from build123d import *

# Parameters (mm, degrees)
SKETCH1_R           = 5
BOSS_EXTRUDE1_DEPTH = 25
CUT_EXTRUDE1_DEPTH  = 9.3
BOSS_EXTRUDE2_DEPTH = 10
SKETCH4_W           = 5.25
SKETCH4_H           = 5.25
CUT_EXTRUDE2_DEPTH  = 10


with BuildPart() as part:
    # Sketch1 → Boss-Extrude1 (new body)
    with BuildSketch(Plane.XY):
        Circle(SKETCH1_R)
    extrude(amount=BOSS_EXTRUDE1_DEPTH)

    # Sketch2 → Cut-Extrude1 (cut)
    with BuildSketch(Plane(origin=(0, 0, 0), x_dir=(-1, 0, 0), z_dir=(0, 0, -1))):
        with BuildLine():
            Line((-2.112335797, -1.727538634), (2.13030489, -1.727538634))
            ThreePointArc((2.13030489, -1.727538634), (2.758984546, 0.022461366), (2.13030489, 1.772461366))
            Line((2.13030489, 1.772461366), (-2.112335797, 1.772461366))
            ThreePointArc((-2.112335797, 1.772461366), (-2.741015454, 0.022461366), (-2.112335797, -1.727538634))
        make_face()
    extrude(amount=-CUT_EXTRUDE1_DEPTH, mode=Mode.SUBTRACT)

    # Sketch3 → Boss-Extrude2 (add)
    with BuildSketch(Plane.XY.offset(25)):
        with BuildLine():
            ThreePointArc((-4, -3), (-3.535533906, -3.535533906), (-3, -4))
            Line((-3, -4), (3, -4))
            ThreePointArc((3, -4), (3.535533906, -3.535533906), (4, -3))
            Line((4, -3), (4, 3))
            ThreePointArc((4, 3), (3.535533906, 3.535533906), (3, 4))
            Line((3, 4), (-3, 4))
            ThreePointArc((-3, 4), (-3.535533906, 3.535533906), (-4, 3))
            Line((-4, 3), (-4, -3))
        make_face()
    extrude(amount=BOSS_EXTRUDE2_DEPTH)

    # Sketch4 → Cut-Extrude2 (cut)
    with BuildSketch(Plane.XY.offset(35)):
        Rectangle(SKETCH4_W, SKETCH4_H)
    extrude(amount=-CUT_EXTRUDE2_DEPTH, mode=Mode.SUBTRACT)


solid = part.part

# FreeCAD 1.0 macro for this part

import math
import FreeCAD as App
import Part
import Sketcher

V = App.Vector

doc = App.newDocument("Part")
params = doc.addObject("Spreadsheet::Sheet", "Params")
for row, (alias, value) in enumerate([
    ("sketch1_diameter", "10 mm"),
    ("pad1_length", "25 mm"),
    ("sketch2_radius", "2.75 mm"),
    ("pocket1_length", "9.3 mm"),
    ("sketch3_radius", "5 mm"),
    ("sketch3_width", "6 mm"),
    ("pad2_length", "10 mm"),
    ("sketch4_width", "5.25 mm"),
    ("pocket2_length", "10 mm"),
], start=1):
    params.set(f"A{row}", alias)
    params.set(f"B{row}", "=" + value)
    params.setAlias(f"B{row}", alias)

body = doc.addObject("PartDesign::Body", "Body")

sketch1 = doc.addObject("Sketcher::SketchObject", "Sketch")
body.addObject(sketch1)
sketch1.AttachmentSupport = (doc.XY_Plane, [""])
sketch1.MapMode = "FlatFace"
sketch1.addGeometry(Part.Circle(V(0, 0, 0), V(0, 0, 1), 5), False)
sketch1.addConstraint(Sketcher.Constraint("Coincident", 0, 3, -1, 1))
sketch1.addConstraint(Sketcher.Constraint("Diameter", 0, 10.0))
sketch1.setExpression("Constraints[1]", "Params.sketch1_diameter")
pad1 = doc.addObject("PartDesign::Pad", "Pad")
body.addObject(pad1)
pad1.Profile = sketch1
pad1.setExpression("Length", "Params.pad1_length")

sketch2 = doc.addObject("Sketcher::SketchObject", "Sketch001")
body.addObject(sketch2)
sketch2.AttachmentSupport = (doc.XY_Plane, [""])
sketch2.MapMode = "FlatFace"
sketch2.addGeometry(Part.LineSegment(V(2.112336, -1.727539, 0), V(-2.130305, -1.727539, 0)), False)
sketch2.addGeometry(Part.ArcOfCircle(Part.Circle(V(-0.008985, 0.022461, 0), V(0, 0, 1), 2.75), math.radians(140.478804), math.radians(219.521196)), False)
sketch2.addGeometry(Part.LineSegment(V(-2.130305, 1.772461, 0), V(2.112336, 1.772461, 0)), False)
sketch2.addGeometry(Part.ArcOfCircle(Part.Circle(V(-0.008985, 0.022461, 0), V(0, 0, 1), 2.75), math.radians(-39.521196), math.radians(39.521196)), False)
sketch2.addConstraint(Sketcher.Constraint("Coincident", 0, 2, 1, 2))
sketch2.addConstraint(Sketcher.Constraint("Coincident", 1, 1, 2, 1))
sketch2.addConstraint(Sketcher.Constraint("Coincident", 2, 2, 3, 2))
sketch2.addConstraint(Sketcher.Constraint("Coincident", 3, 1, 0, 1))
sketch2.addConstraint(Sketcher.Constraint("Horizontal", 0))
sketch2.addConstraint(Sketcher.Constraint("Horizontal", 2))
sketch2.addConstraint(Sketcher.Constraint("Coincident", 3, 3, 1, 3))
sketch2.addConstraint(Sketcher.Constraint("Equal", 1, 3))
sketch2.addConstraint(Sketcher.Constraint("Vertical", 0, 2, 1, 1))
sketch2.addConstraint(Sketcher.Constraint("Radius", 1, 2.75))
sketch2.addConstraint(Sketcher.Constraint("DistanceY", 0, 2, 1, 1, 3.5))
sketch2.addConstraint(Sketcher.Constraint("DistanceY", -1, 1, 1, 3, 0.022461))
sketch2.addConstraint(Sketcher.Constraint("DistanceX", 1, 3, -1, 1, 0.008985))
sketch2.setExpression("Constraints[9]", "Params.sketch2_radius")
pocket1 = doc.addObject("PartDesign::Pocket", "Pocket")
body.addObject(pocket1)
pocket1.Profile = sketch2
pocket1.setExpression("Length", "Params.pocket1_length")
pocket1.Reversed = True

sketch3 = doc.addObject("Sketcher::SketchObject", "Sketch002")
body.addObject(sketch3)
sketch3.AttachmentSupport = (doc.XY_Plane, [""])
sketch3.MapMode = "FlatFace"
sketch3.AttachmentOffset = App.Placement(V(0, 0, 25), App.Rotation())
sketch3.addGeometry(Part.ArcOfCircle(Part.Circle(V(0, 0, 0), V(0, 0, 1), 5), math.radians(-143.130102), math.radians(-126.869898)), False)
sketch3.addGeometry(Part.LineSegment(V(-3, -4, 0), V(3, -4, 0)), False)
sketch3.addGeometry(Part.ArcOfCircle(Part.Circle(V(0, 0, 0), V(0, 0, 1), 5), math.radians(-53.130102), math.radians(-36.869898)), False)
sketch3.addGeometry(Part.LineSegment(V(4, -3, 0), V(4, 3, 0)), False)
sketch3.addGeometry(Part.ArcOfCircle(Part.Circle(V(0, 0, 0), V(0, 0, 1), 5), math.radians(36.869898), math.radians(53.130102)), False)
sketch3.addGeometry(Part.LineSegment(V(3, 4, 0), V(-3, 4, 0)), False)
sketch3.addGeometry(Part.ArcOfCircle(Part.Circle(V(0, 0, 0), V(0, 0, 1), 5), math.radians(126.869898), math.radians(143.130102)), False)
sketch3.addGeometry(Part.LineSegment(V(-4, 3, 0), V(-4, -3, 0)), False)
sketch3.addConstraint(Sketcher.Constraint("Coincident", 0, 2, 1, 1))
sketch3.addConstraint(Sketcher.Constraint("Coincident", 1, 2, 2, 1))
sketch3.addConstraint(Sketcher.Constraint("Coincident", 2, 2, 3, 1))
sketch3.addConstraint(Sketcher.Constraint("Coincident", 3, 2, 4, 1))
sketch3.addConstraint(Sketcher.Constraint("Coincident", 4, 2, 5, 1))
sketch3.addConstraint(Sketcher.Constraint("Coincident", 5, 2, 6, 1))
sketch3.addConstraint(Sketcher.Constraint("Coincident", 6, 2, 7, 1))
sketch3.addConstraint(Sketcher.Constraint("Coincident", 7, 2, 0, 1))
sketch3.addConstraint(Sketcher.Constraint("Horizontal", 1))
sketch3.addConstraint(Sketcher.Constraint("Vertical", 3))
sketch3.addConstraint(Sketcher.Constraint("Horizontal", 5))
sketch3.addConstraint(Sketcher.Constraint("Vertical", 7))
sketch3.addConstraint(Sketcher.Constraint("Coincident", 0, 3, -1, 1))
sketch3.addConstraint(Sketcher.Constraint("Coincident", 2, 3, -1, 1))
sketch3.addConstraint(Sketcher.Constraint("Coincident", 4, 3, -1, 1))
sketch3.addConstraint(Sketcher.Constraint("Coincident", 6, 3, -1, 1))
sketch3.addConstraint(Sketcher.Constraint("Equal", 0, 2))
sketch3.addConstraint(Sketcher.Constraint("Equal", 2, 4))
sketch3.addConstraint(Sketcher.Constraint("Equal", 4, 6))
sketch3.addConstraint(Sketcher.Constraint("Horizontal", 3, 2, 6, 2))
sketch3.addConstraint(Sketcher.Constraint("Vertical", 1, 2, 4, 2))
sketch3.addConstraint(Sketcher.Constraint("Equal", 5, 3))
sketch3.addConstraint(Sketcher.Constraint("Radius", 0, 5.0))
sketch3.addConstraint(Sketcher.Constraint("DistanceX", 1, 1, 1, 2, 6.0))
sketch3.setExpression("Constraints[22]", "Params.sketch3_radius")
sketch3.setExpression("Constraints[23]", "Params.sketch3_width")
pad2 = doc.addObject("PartDesign::Pad", "Pad001")
body.addObject(pad2)
pad2.Profile = sketch3
pad2.setExpression("Length", "Params.pad2_length")

sketch4 = doc.addObject("Sketcher::SketchObject", "Sketch003")
body.addObject(sketch4)
sketch4.AttachmentSupport = (doc.XY_Plane, [""])
sketch4.MapMode = "FlatFace"
sketch4.AttachmentOffset = App.Placement(V(0, 0, 35), App.Rotation())
sketch4.addGeometry(Part.LineSegment(V(-2.625, 2.625, 0), V(-2.625, -2.625, 0)), False)
sketch4.addGeometry(Part.LineSegment(V(-2.625, -2.625, 0), V(2.625, -2.625, 0)), False)
sketch4.addGeometry(Part.LineSegment(V(2.625, -2.625, 0), V(2.625, 2.625, 0)), False)
sketch4.addGeometry(Part.LineSegment(V(2.625, 2.625, 0), V(-2.625, 2.625, 0)), False)
sketch4.addConstraint(Sketcher.Constraint("Coincident", 0, 2, 1, 1))
sketch4.addConstraint(Sketcher.Constraint("Coincident", 1, 2, 2, 1))
sketch4.addConstraint(Sketcher.Constraint("Coincident", 2, 2, 3, 1))
sketch4.addConstraint(Sketcher.Constraint("Coincident", 3, 2, 0, 1))
sketch4.addConstraint(Sketcher.Constraint("Vertical", 0))
sketch4.addConstraint(Sketcher.Constraint("Horizontal", 1))
sketch4.addConstraint(Sketcher.Constraint("Vertical", 2))
sketch4.addConstraint(Sketcher.Constraint("Horizontal", 3))
sketch4.addConstraint(Sketcher.Constraint("Symmetric", 0, 2, 2, 2, -1, 1))
sketch4.addConstraint(Sketcher.Constraint("Equal", 3, 0))
sketch4.addConstraint(Sketcher.Constraint("DistanceX", 1, 1, 1, 2, 5.25))
sketch4.setExpression("Constraints[10]", "Params.sketch4_width")
pocket2 = doc.addObject("PartDesign::Pocket", "Pocket001")
body.addObject(pocket2)
pocket2.Profile = sketch4
pocket2.setExpression("Length", "Params.pocket2_length")

doc.recompute()
